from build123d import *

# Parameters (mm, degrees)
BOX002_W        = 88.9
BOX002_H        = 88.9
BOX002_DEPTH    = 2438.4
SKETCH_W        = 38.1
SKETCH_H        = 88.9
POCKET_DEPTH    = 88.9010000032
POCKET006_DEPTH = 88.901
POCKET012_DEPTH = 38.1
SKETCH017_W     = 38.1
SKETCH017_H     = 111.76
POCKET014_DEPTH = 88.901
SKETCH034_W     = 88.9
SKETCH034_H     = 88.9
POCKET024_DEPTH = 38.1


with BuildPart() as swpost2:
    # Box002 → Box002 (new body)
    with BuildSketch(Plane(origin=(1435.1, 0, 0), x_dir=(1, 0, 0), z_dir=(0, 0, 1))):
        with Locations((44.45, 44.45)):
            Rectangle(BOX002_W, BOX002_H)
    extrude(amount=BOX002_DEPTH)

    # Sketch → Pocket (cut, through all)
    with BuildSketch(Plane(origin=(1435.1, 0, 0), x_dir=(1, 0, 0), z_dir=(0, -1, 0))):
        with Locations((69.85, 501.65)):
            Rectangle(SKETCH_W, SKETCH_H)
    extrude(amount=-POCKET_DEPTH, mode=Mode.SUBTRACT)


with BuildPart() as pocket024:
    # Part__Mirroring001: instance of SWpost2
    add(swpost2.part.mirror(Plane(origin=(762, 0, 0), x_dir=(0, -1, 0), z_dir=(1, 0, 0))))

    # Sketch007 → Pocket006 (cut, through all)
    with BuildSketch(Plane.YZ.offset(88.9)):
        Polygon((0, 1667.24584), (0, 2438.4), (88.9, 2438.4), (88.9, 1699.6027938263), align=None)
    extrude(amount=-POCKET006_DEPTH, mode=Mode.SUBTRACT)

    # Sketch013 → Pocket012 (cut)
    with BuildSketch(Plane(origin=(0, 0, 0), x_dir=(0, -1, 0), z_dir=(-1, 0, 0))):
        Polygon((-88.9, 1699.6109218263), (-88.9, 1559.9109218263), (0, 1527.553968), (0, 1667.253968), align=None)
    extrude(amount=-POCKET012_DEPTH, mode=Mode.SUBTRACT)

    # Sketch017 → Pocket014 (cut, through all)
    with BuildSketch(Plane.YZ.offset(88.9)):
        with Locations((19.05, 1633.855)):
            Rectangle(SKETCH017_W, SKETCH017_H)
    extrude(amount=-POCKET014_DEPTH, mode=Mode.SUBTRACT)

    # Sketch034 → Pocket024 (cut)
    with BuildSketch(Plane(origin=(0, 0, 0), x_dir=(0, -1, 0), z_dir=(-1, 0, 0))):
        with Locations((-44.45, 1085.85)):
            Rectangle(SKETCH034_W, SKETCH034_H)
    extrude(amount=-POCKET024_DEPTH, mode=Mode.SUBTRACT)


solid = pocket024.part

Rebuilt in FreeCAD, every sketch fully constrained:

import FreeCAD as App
import Part
import Sketcher
from FreeCAD import Vector
Q = App.Units.Quantity

doc = App.newDocument("Part")
body = doc.addObject("PartDesign::Body", "Body")

# Sketch on XY plane
sketch1 = body.newObject("Sketcher::SketchObject", "Sketch")
sketch1.AttachmentSupport = (doc.getObject("XY_Plane"), [""])
sketch1.MapMode = "FlatFace"
sketch1.addGeometry([
    Part.LineSegment(Vector(1435, 89, 0), Vector(1435, 0, 0)),
    Part.LineSegment(Vector(1435, 0, 0), Vector(1524, 0, 0)),
    Part.LineSegment(Vector(1524, 0, 0), Vector(1524, 89, 0)),
    Part.LineSegment(Vector(1524, 89, 0), Vector(1435, 89, 0)),
], False)
sketch1.addConstraint([
    Sketcher.Constraint("Coincident", 0, 2, 1, 1),
    Sketcher.Constraint("Coincident", 1, 2, 2, 1),
    Sketcher.Constraint("Coincident", 2, 2, 3, 1),
    Sketcher.Constraint("Coincident", 3, 2, 0, 1),
    Sketcher.Constraint("Vertical", 0),
    Sketcher.Constraint("Horizontal", 1),
    Sketcher.Constraint("Vertical", 2),
    Sketcher.Constraint("Horizontal", 3),
    Sketcher.Constraint("PointOnObject", 0, 2, -1),
    Sketcher.Constraint("Equal", 3, 0),
    Sketcher.Constraint("DistanceX", 1, 1, 1, 2, Q("3.5 in")),
    Sketcher.Constraint("DistanceX", -1, 1, 1, 2, Q("60 in")),
])
pad1 = body.newObject("PartDesign::Pad", "Pad")
pad1.Profile = sketch1
pad1.Length = Q("96 in")

# Sketch on XZ plane
sketch2 = body.newObject("Sketcher::SketchObject", "Sketch001")
sketch2.AttachmentSupport = (doc.getObject("XZ_Plane"), [""])
sketch2.MapMode = "FlatFace"
sketch2.addGeometry([
    Part.LineSegment(Vector(1486, 546, 0), Vector(1486, 457, 0)),
    Part.LineSegment(Vector(1486, 457, 0), Vector(1524, 457, 0)),
    Part.LineSegment(Vector(1524, 457, 0), Vector(1524, 546, 0)),
    Part.LineSegment(Vector(1524, 546, 0), Vector(1486, 546, 0)),
], False)
sketch2.addConstraint([
    Sketcher.Constraint("Coincident", 0, 2, 1, 1),
    Sketcher.Constraint("Coincident", 1, 2, 2, 1),
    Sketcher.Constraint("Coincident", 2, 2, 3, 1),
    Sketcher.Constraint("Coincident", 3, 2, 0, 1),
    Sketcher.Constraint("Vertical", 0),
    Sketcher.Constraint("Horizontal", 1),
    Sketcher.Constraint("Vertical", 2),
    Sketcher.Constraint("Horizontal", 3),
    Sketcher.Constraint("DistanceX", 1, 1, 1, 2, Q("1.5 in")),
    Sketcher.Constraint("DistanceY", 0, 2, 0, 1, Q("3.5 in")),
    Sketcher.Constraint("DistanceY", -1, 1, 0, 2, Q("18 in")),
    Sketcher.Constraint("DistanceX", -1, 1, 1, 2, Q("60 in")),
])
pocket1 = body.newObject("PartDesign::Pocket", "Pocket")
pocket1.Profile = sketch2
pocket1.Type = "ThroughAll"
body2 = doc.addObject("PartDesign::Body", "Body001")
doc.recompute()

mirroring = doc.addObject("Part::Mirroring", "Mirroring")
mirroring.Source = body
mirroring.Base = Vector(762, 0, 0)
mirroring.Normal = Vector(1, 0, 0)
body2.BaseFeature = mirroring
doc.recompute()

# Sketch on YZ plane
sketch3 = body2.newObject("Sketcher::SketchObject", "Sketch002")
sketch3.AttachmentSupport = (doc.getObject("YZ_Plane001"), [""])
sketch3.MapMode = "FlatFace"
sketch3.AttachmentOffset = App.Placement(Vector(0, 0, 3.5 * 25.4), App.Rotation())
sketch3.addGeometry([
    Part.LineSegment(Vector(0, 2438, 0), Vector(0, 1667, 0)),
    Part.LineSegment(Vector(0, 1667, 0), Vector(89, 1700, 0)),
    Part.LineSegment(Vector(89, 1700, 0), Vector(89, 2438, 0)),
    Part.LineSegment(Vector(89, 2438, 0), Vector(0, 2438, 0)),
], False)
sketch3.addConstraint([
    Sketcher.Constraint("Coincident", 0, 2, 1, 1),
    Sketcher.Constraint("Coincident", 1, 2, 2, 1),
    Sketcher.Constraint("Coincident", 2, 2, 3, 1),
    Sketcher.Constraint("Coincident", 3, 2, 0, 1),
    Sketcher.Constraint("Vertical", 0),
    Sketcher.Constraint("Vertical", 2),
    Sketcher.Constraint("Horizontal", 3),
    Sketcher.Constraint("PointOnObject", 0, 2, -2),
    Sketcher.Constraint("DistanceX", 3, 2, 3, 1, Q("3.5 in")),
    Sketcher.Constraint("DistanceY", -1, 1, 2, 2, Q("96 in")),
    Sketcher.Constraint("Angle", 1, Q("20 deg")),
    Sketcher.Constraint("DistanceY", 0, 2, 0, 1, Q("30.3604 in")),
])
pocket2 = body2.newObject("PartDesign::Pocket", "Pocket001")
pocket2.Profile = sketch3
pocket2.Type = "ThroughAll"

# Sketch on YZ plane
sketch4 = body2.newObject("Sketcher::SketchObject", "Sketch003")
sketch4.AttachmentSupport = (doc.getObject("YZ_Plane001"), [""])
sketch4.MapMode = "FlatFace"
sketch4.addGeometry([
    Part.LineSegment(Vector(89, 1700, 0), Vector(89, 1560, 0)),
    Part.LineSegment(Vector(89, 1560, 0), Vector(0, 1528, 0)),
    Part.LineSegment(Vector(0, 1528, 0), Vector(0, 1667, 0)),
    Part.LineSegment(Vector(0, 1667, 0), Vector(89, 1700, 0)),
], False)
sketch4.addConstraint([
    Sketcher.Constraint("Coincident", 0, 2, 1, 1),
    Sketcher.Constraint("Coincident", 1, 2, 2, 1),
    Sketcher.Constraint("Coincident", 2, 2, 3, 1),
    Sketcher.Constraint("Coincident", 3, 2, 0, 1),
    Sketcher.Constraint("Vertical", 0),
    Sketcher.Constraint("Vertical", 2),
    Sketcher.Constraint("PointOnObject", 1, 2, -2),
    Sketcher.Constraint("Parallel", 1, 3),
    Sketcher.Constraint("DistanceY", 0, 2, 0, 1, Q("5.5 in")),
    Sketcher.Constraint("Angle", 1, Q("-160 deg")),
    Sketcher.Constraint("DistanceX", -1, 1, 0, 2, Q("3.5 in")),
    Sketcher.Constraint("DistanceY", -1, 1, 0, 2, Q("1559.910922 mm")),
])
pocket3 = body2.newObject("PartDesign::Pocket", "Pocket002")
pocket3.Profile = sketch4
pocket3.Length = Q("1.5 in")
pocket3.Reversed = True

# Sketch on YZ plane
sketch5 = body2.newObject("Sketcher::SketchObject", "Sketch004")
sketch5.AttachmentSupport = (doc.getObject("YZ_Plane001"), [""])
sketch5.MapMode = "FlatFace"
sketch5.AttachmentOffset = App.Placement(Vector(0, 0, 3.5 * 25.4), App.Rotation())
sketch5.addGeometry([
    Part.LineSegment(Vector(0, 1690, 0), Vector(0, 1578, 0)),
    Part.LineSegment(Vector(0, 1578, 0), Vector(38, 1578, 0)),
    Part.LineSegment(Vector(38, 1578, 0), Vector(38, 1690, 0)),
    Part.LineSegment(Vector(38, 1690, 0), Vector(0, 1690, 0)),
], False)
sketch5.addConstraint([
    Sketcher.Constraint("Coincident", 0, 2, 1, 1),
    Sketcher.Constraint("Coincident", 1, 2, 2, 1),
    Sketcher.Constraint("Coincident", 2, 2, 3, 1),
    Sketcher.Constraint("Coincident", 3, 2, 0, 1),
    Sketcher.Constraint("Vertical", 0),
    Sketcher.Constraint("Horizontal", 1),
    Sketcher.Constraint("Vertical", 2),
    Sketcher.Constraint("Horizontal", 3),
    Sketcher.Constraint("PointOnObject", 0, 2, -2),
    Sketcher.Constraint("DistanceX", 1, 1, 1, 2, Q("1.5 in")),
    Sketcher.Constraint("DistanceY", 0, 2, 0, 1, Q("4.4 in")),
    Sketcher.Constraint("DistanceY", -1, 1, 0, 2, Q("62.125 in")),
])
pocket4 = body2.newObject("PartDesign::Pocket", "Pocket003")
pocket4.Profile = sketch5
pocket4.Type = "ThroughAll"

# Sketch on YZ plane
sketch6 = body2.newObject("Sketcher::SketchObject", "Sketch005")
sketch6.AttachmentSupport = (doc.getObject("YZ_Plane001"), [""])
sketch6.MapMode = "FlatFace"
sketch6.addGeometry([
    Part.LineSegment(Vector(89, 1130, 0), Vector(89, 1041, 0)),
    Part.LineSegment(Vector(89, 1041, 0), Vector(0, 1041, 0)),
    Part.LineSegment(Vector(0, 1041, 0), Vector(0, 1130, 0)),
    Part.LineSegment(Vector(0, 1130, 0), Vector(89, 1130, 0)),
], False)
sketch6.addConstraint([
    Sketcher.Constraint("Coincident", 0, 2, 1, 1),
    Sketcher.Constraint("Coincident", 1, 2, 2, 1),
    Sketcher.Constraint("Coincident", 2, 2, 3, 1),
    Sketcher.Constraint("Coincident", 3, 2, 0, 1),
    Sketcher.Constraint("Vertical", 0),
    Sketcher.Constraint("Horizontal", 1),
    Sketcher.Constraint("Vertical", 2),
    Sketcher.Constraint("Horizontal", 3),
    Sketcher.Constraint("PointOnObject", 1, 2, -2),
    Sketcher.Constraint("Equal", 3, 0),
    Sketcher.Constraint("DistanceX", 1, 2, 1, 1, Q("3.5 in")),
    Sketcher.Constraint("DistanceY", -1, 1, 0, 2, Q("41 in")),
])
pocket5 = body2.newObject("PartDesign::Pocket", "Pocket004")
pocket5.Profile = sketch6
pocket5.Length = Q("1.5 in")
pocket5.Reversed = True
body.Visibility = False
mirroring.Visibility = False

doc.recompute()
